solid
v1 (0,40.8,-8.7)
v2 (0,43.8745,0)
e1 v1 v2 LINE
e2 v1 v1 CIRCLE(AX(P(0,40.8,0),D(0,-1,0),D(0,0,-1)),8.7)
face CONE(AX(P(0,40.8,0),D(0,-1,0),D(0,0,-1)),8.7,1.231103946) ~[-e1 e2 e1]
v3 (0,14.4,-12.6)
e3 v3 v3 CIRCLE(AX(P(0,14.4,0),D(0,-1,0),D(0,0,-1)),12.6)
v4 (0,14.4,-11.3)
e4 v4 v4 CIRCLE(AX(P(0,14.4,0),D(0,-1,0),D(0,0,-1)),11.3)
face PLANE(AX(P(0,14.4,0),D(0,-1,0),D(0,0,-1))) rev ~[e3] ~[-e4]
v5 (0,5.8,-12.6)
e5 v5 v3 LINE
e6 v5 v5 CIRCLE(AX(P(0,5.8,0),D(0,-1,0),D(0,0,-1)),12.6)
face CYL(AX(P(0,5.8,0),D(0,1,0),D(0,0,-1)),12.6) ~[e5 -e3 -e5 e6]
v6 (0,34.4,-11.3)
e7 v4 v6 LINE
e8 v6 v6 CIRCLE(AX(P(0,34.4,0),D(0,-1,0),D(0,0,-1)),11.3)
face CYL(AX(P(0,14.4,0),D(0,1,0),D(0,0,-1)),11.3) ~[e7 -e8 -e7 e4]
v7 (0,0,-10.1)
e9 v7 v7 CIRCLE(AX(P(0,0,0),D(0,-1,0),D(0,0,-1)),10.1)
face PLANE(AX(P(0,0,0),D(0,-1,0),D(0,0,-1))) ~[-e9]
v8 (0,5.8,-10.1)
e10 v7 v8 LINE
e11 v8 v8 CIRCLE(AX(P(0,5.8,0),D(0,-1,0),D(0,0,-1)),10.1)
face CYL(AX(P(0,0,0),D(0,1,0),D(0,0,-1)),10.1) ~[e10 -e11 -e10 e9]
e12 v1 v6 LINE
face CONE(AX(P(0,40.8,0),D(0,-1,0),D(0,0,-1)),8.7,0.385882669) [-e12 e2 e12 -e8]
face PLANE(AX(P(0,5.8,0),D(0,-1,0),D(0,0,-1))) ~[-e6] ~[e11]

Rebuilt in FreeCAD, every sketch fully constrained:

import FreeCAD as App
import Part
import Sketcher

V = App.Vector


def add_polygon(sketch, points):
    """Adds a closed chain of lines whose ends are joined by coincident constraints."""
    first, n = sketch.GeometryCount, len(points)
    for a, b in zip(points, points[1:] + points[:1]):
        sketch.addGeometry(Part.LineSegment(App.Vector(*a, 0), App.Vector(*b, 0)), False)
    for i in range(n):
        sketch.addConstraint(Sketcher.Constraint("Coincident", first + i, 2, first + (i + 1) % n, 1))

doc = App.newDocument("Part")
body = doc.addObject("PartDesign::Body", "Body")

# Sketch on YZ plane
sketch1 = doc.addObject("Sketcher::SketchObject", "Sketch")
body.addObject(sketch1)
sketch1.AttachmentSupport = (doc.YZ_Plane, [""])
sketch1.MapMode = "FlatFace"
add_polygon(sketch1, [(43.9, 0), (0, 0), (0, -10.1), (5.8, -10.1), (5.8, -12.6), (14.4, -12.6), (14.4, -11.3), (34.4, -11.3), (40.8, -8.7)])  # lines 0-8
sketch1.addConstraint(Sketcher.Constraint("Horizontal", 0))
sketch1.addConstraint(Sketcher.Constraint("Vertical", 1))
sketch1.addConstraint(Sketcher.Constraint("Horizontal", 2))
sketch1.addConstraint(Sketcher.Constraint("Vertical", 3))
sketch1.addConstraint(Sketcher.Constraint("Horizontal", 4))
sketch1.addConstraint(Sketcher.Constraint("Vertical", 5))
sketch1.addConstraint(Sketcher.Constraint("Horizontal", 6))
sketch1.addConstraint(Sketcher.Constraint("Coincident", 0, 2, -1, 1))
sketch1.addConstraint(Sketcher.Constraint("DistanceX", 6, 1, 6, 2, 20.0))
sketch1.addConstraint(Sketcher.Constraint("DistanceX", 2, 1, 2, 2, 5.8))
sketch1.addConstraint(Sketcher.Constraint("DistanceX", 4, 1, 4, 2, 8.6))
sketch1.addConstraint(Sketcher.Constraint("DistanceY", 1, 2, 1, 1, 10.1))
sketch1.addConstraint(Sketcher.Constraint("DistanceY", 3, 2, 3, 1, 2.5))
sketch1.addConstraint(Sketcher.Constraint("DistanceY", 5, 1, 5, 2, 1.3))
sketch1.addConstraint(Sketcher.Constraint("DistanceX", 6, 2, 7, 2, 6.4))
sketch1.addConstraint(Sketcher.Constraint("DistanceY", 6, 2, 7, 2, 2.6))
sketch1.addConstraint(Sketcher.Constraint("DistanceX", 0, 2, 0, 1, 43.8745))
revolution = doc.addObject("PartDesign::Revolution", "Revolution")
body.addObject(revolution)
revolution.Profile = sketch1
revolution.ReferenceAxis = (sketch1, ["H_Axis"])
revolution.Angle = 360

doc.recompute()
